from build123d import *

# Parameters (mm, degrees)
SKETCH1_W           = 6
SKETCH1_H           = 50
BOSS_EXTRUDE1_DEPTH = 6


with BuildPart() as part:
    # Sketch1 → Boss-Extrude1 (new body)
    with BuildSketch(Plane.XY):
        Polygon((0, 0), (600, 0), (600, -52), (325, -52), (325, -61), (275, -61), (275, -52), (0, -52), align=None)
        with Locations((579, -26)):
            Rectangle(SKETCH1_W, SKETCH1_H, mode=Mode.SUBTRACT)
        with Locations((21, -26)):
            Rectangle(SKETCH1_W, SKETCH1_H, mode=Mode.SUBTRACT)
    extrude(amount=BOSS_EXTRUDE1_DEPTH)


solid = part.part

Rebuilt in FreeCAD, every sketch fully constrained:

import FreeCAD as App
import Part
import Sketcher

V = App.Vector

doc = App.newDocument("Part")
body = doc.addObject("PartDesign::Body", "Body")

sketch1 = doc.addObject("Sketcher::SketchObject", "Sketch")
body.addObject(sketch1)
sketch1.AttachmentSupport = (doc.XY_Plane, [""])
sketch1.MapMode = "FlatFace"
sketch1.addGeometry(Part.LineSegment(V(600, 0, 0), V(0, 0, 0)), False)
sketch1.addGeometry(Part.LineSegment(V(0, 0, 0), V(0, -52, 0)), False)
sketch1.addGeometry(Part.LineSegment(V(0, -52, 0), V(275, -52, 0)), False)
sketch1.addGeometry(Part.LineSegment(V(275, -52, 0), V(275, -61, 0)), False)
sketch1.addGeometry(Part.LineSegment(V(275, -61, 0), V(325, -61, 0)), False)
sketch1.addGeometry(Part.LineSegment(V(325, -61, 0), V(325, -52, 0)), False)
sketch1.addGeometry(Part.LineSegment(V(325, -52, 0), V(600, -52, 0)), False)
sketch1.addGeometry(Part.LineSegment(V(600, -52, 0), V(600, 0, 0)), False)
sketch1.addGeometry(Part.LineSegment(V(576, -51, 0), V(576, -1, 0)), False)
sketch1.addGeometry(Part.LineSegment(V(576, -1, 0), V(582, -1, 0)), False)
sketch1.addGeometry(Part.LineSegment(V(582, -1, 0), V(582, -51, 0)), False)
sketch1.addGeometry(Part.LineSegment(V(582, -51, 0), V(576, -51, 0)), False)
sketch1.addGeometry(Part.LineSegment(V(18, -51, 0), V(18, -1, 0)), False)
sketch1.addGeometry(Part.LineSegment(V(18, -1, 0), V(24, -1, 0)), False)
sketch1.addGeometry(Part.LineSegment(V(24, -1, 0), V(24, -51, 0)), False)
sketch1.addGeometry(Part.LineSegment(V(24, -51, 0), V(18, -51, 0)), False)
sketch1.addConstraint(Sketcher.Constraint("Coincident", 0, 2, 1, 1))
sketch1.addConstraint(Sketcher.Constraint("Coincident", 1, 2, 2, 1))
sketch1.addConstraint(Sketcher.Constraint("Coincident", 2, 2, 3, 1))
sketch1.addConstraint(Sketcher.Constraint("Coincident", 3, 2, 4, 1))
sketch1.addConstraint(Sketcher.Constraint("Coincident", 4, 2, 5, 1))
sketch1.addConstraint(Sketcher.Constraint("Coincident", 5, 2, 6, 1))
sketch1.addConstraint(Sketcher.Constraint("Coincident", 6, 2, 7, 1))
sketch1.addConstraint(Sketcher.Constraint("Coincident", 7, 2, 0, 1))
sketch1.addConstraint(Sketcher.Constraint("Coincident", 8, 2, 9, 1))
sketch1.addConstraint(Sketcher.Constraint("Coincident", 9, 2, 10, 1))
sketch1.addConstraint(Sketcher.Constraint("Coincident", 10, 2, 11, 1))
sketch1.addConstraint(Sketcher.Constraint("Coincident", 11, 2, 8, 1))
sketch1.addConstraint(Sketcher.Constraint("Coincident", 12, 2, 13, 1))
sketch1.addConstraint(Sketcher.Constraint("Coincident", 13, 2, 14, 1))
sketch1.addConstraint(Sketcher.Constraint("Coincident", 14, 2, 15, 1))
sketch1.addConstraint(Sketcher.Constraint("Coincident", 15, 2, 12, 1))
sketch1.addConstraint(Sketcher.Constraint("Horizontal", 0))
sketch1.addConstraint(Sketcher.Constraint("Vertical", 1))
sketch1.addConstraint(Sketcher.Constraint("Horizontal", 2))
sketch1.addConstraint(Sketcher.Constraint("Vertical", 3))
sketch1.addConstraint(Sketcher.Constraint("Horizontal", 4))
sketch1.addConstraint(Sketcher.Constraint("Vertical", 5))
sketch1.addConstraint(Sketcher.Constraint("Horizontal", 6))
sketch1.addConstraint(Sketcher.Constraint("Vertical", 7))
sketch1.addConstraint(Sketcher.Constraint("Vertical", 8))
sketch1.addConstraint(Sketcher.Constraint("Horizontal", 9))
sketch1.addConstraint(Sketcher.Constraint("Vertical", 10))
sketch1.addConstraint(Sketcher.Constraint("Horizontal", 11))
sketch1.addConstraint(Sketcher.Constraint("Vertical", 12))
sketch1.addConstraint(Sketcher.Constraint("Horizontal", 13))
sketch1.addConstraint(Sketcher.Constraint("Vertical", 14))
sketch1.addConstraint(Sketcher.Constraint("Horizontal", 15))
sketch1.addConstraint(Sketcher.Constraint("Coincident", 0, 2, -1, 1))
sketch1.addConstraint(Sketcher.Constraint("Horizontal", 2, 2, 5, 2))
sketch1.addConstraint(Sketcher.Constraint("Horizontal", 9, 2, 12, 2))
sketch1.addConstraint(Sketcher.Constraint("Horizontal", 11, 2, 14, 2))
sketch1.addConstraint(Sketcher.Constraint("Equal", 2, 6))
sketch1.addConstraint(Sketcher.Constraint("Equal", 11, 13))
sketch1.addConstraint(Sketcher.Constraint("Equal", 4, 8))
sketch1.addConstraint(Sketcher.Constraint("DistanceX", 0, 2, 0, 1, 600.0))
sketch1.addConstraint(Sketcher.Constraint("DistanceX", 2, 1, 2, 2, 275.0))
sketch1.addConstraint(Sketcher.Constraint("DistanceX", 9, 1, 9, 2, 6.0))
sketch1.addConstraint(Sketcher.Constraint("DistanceY", 1, 2, 1, 1, 52.0))
sketch1.addConstraint(Sketcher.Constraint("DistanceY", 3, 2, 3, 1, 9.0))
sketch1.addConstraint(Sketcher.Constraint("DistanceX", -1, 1, 8, 2, 576.0))
sketch1.addConstraint(Sketcher.Constraint("DistanceY", 8, 2, -1, 1, 1.0))
sketch1.addConstraint(Sketcher.Constraint("DistanceX", -1, 1, 12, 2, 18.0))
pad1 = doc.addObject("PartDesign::Pad", "Pad")
body.addObject(pad1)
pad1.Profile = sketch1
pad1.Length = 6

doc.recompute()
